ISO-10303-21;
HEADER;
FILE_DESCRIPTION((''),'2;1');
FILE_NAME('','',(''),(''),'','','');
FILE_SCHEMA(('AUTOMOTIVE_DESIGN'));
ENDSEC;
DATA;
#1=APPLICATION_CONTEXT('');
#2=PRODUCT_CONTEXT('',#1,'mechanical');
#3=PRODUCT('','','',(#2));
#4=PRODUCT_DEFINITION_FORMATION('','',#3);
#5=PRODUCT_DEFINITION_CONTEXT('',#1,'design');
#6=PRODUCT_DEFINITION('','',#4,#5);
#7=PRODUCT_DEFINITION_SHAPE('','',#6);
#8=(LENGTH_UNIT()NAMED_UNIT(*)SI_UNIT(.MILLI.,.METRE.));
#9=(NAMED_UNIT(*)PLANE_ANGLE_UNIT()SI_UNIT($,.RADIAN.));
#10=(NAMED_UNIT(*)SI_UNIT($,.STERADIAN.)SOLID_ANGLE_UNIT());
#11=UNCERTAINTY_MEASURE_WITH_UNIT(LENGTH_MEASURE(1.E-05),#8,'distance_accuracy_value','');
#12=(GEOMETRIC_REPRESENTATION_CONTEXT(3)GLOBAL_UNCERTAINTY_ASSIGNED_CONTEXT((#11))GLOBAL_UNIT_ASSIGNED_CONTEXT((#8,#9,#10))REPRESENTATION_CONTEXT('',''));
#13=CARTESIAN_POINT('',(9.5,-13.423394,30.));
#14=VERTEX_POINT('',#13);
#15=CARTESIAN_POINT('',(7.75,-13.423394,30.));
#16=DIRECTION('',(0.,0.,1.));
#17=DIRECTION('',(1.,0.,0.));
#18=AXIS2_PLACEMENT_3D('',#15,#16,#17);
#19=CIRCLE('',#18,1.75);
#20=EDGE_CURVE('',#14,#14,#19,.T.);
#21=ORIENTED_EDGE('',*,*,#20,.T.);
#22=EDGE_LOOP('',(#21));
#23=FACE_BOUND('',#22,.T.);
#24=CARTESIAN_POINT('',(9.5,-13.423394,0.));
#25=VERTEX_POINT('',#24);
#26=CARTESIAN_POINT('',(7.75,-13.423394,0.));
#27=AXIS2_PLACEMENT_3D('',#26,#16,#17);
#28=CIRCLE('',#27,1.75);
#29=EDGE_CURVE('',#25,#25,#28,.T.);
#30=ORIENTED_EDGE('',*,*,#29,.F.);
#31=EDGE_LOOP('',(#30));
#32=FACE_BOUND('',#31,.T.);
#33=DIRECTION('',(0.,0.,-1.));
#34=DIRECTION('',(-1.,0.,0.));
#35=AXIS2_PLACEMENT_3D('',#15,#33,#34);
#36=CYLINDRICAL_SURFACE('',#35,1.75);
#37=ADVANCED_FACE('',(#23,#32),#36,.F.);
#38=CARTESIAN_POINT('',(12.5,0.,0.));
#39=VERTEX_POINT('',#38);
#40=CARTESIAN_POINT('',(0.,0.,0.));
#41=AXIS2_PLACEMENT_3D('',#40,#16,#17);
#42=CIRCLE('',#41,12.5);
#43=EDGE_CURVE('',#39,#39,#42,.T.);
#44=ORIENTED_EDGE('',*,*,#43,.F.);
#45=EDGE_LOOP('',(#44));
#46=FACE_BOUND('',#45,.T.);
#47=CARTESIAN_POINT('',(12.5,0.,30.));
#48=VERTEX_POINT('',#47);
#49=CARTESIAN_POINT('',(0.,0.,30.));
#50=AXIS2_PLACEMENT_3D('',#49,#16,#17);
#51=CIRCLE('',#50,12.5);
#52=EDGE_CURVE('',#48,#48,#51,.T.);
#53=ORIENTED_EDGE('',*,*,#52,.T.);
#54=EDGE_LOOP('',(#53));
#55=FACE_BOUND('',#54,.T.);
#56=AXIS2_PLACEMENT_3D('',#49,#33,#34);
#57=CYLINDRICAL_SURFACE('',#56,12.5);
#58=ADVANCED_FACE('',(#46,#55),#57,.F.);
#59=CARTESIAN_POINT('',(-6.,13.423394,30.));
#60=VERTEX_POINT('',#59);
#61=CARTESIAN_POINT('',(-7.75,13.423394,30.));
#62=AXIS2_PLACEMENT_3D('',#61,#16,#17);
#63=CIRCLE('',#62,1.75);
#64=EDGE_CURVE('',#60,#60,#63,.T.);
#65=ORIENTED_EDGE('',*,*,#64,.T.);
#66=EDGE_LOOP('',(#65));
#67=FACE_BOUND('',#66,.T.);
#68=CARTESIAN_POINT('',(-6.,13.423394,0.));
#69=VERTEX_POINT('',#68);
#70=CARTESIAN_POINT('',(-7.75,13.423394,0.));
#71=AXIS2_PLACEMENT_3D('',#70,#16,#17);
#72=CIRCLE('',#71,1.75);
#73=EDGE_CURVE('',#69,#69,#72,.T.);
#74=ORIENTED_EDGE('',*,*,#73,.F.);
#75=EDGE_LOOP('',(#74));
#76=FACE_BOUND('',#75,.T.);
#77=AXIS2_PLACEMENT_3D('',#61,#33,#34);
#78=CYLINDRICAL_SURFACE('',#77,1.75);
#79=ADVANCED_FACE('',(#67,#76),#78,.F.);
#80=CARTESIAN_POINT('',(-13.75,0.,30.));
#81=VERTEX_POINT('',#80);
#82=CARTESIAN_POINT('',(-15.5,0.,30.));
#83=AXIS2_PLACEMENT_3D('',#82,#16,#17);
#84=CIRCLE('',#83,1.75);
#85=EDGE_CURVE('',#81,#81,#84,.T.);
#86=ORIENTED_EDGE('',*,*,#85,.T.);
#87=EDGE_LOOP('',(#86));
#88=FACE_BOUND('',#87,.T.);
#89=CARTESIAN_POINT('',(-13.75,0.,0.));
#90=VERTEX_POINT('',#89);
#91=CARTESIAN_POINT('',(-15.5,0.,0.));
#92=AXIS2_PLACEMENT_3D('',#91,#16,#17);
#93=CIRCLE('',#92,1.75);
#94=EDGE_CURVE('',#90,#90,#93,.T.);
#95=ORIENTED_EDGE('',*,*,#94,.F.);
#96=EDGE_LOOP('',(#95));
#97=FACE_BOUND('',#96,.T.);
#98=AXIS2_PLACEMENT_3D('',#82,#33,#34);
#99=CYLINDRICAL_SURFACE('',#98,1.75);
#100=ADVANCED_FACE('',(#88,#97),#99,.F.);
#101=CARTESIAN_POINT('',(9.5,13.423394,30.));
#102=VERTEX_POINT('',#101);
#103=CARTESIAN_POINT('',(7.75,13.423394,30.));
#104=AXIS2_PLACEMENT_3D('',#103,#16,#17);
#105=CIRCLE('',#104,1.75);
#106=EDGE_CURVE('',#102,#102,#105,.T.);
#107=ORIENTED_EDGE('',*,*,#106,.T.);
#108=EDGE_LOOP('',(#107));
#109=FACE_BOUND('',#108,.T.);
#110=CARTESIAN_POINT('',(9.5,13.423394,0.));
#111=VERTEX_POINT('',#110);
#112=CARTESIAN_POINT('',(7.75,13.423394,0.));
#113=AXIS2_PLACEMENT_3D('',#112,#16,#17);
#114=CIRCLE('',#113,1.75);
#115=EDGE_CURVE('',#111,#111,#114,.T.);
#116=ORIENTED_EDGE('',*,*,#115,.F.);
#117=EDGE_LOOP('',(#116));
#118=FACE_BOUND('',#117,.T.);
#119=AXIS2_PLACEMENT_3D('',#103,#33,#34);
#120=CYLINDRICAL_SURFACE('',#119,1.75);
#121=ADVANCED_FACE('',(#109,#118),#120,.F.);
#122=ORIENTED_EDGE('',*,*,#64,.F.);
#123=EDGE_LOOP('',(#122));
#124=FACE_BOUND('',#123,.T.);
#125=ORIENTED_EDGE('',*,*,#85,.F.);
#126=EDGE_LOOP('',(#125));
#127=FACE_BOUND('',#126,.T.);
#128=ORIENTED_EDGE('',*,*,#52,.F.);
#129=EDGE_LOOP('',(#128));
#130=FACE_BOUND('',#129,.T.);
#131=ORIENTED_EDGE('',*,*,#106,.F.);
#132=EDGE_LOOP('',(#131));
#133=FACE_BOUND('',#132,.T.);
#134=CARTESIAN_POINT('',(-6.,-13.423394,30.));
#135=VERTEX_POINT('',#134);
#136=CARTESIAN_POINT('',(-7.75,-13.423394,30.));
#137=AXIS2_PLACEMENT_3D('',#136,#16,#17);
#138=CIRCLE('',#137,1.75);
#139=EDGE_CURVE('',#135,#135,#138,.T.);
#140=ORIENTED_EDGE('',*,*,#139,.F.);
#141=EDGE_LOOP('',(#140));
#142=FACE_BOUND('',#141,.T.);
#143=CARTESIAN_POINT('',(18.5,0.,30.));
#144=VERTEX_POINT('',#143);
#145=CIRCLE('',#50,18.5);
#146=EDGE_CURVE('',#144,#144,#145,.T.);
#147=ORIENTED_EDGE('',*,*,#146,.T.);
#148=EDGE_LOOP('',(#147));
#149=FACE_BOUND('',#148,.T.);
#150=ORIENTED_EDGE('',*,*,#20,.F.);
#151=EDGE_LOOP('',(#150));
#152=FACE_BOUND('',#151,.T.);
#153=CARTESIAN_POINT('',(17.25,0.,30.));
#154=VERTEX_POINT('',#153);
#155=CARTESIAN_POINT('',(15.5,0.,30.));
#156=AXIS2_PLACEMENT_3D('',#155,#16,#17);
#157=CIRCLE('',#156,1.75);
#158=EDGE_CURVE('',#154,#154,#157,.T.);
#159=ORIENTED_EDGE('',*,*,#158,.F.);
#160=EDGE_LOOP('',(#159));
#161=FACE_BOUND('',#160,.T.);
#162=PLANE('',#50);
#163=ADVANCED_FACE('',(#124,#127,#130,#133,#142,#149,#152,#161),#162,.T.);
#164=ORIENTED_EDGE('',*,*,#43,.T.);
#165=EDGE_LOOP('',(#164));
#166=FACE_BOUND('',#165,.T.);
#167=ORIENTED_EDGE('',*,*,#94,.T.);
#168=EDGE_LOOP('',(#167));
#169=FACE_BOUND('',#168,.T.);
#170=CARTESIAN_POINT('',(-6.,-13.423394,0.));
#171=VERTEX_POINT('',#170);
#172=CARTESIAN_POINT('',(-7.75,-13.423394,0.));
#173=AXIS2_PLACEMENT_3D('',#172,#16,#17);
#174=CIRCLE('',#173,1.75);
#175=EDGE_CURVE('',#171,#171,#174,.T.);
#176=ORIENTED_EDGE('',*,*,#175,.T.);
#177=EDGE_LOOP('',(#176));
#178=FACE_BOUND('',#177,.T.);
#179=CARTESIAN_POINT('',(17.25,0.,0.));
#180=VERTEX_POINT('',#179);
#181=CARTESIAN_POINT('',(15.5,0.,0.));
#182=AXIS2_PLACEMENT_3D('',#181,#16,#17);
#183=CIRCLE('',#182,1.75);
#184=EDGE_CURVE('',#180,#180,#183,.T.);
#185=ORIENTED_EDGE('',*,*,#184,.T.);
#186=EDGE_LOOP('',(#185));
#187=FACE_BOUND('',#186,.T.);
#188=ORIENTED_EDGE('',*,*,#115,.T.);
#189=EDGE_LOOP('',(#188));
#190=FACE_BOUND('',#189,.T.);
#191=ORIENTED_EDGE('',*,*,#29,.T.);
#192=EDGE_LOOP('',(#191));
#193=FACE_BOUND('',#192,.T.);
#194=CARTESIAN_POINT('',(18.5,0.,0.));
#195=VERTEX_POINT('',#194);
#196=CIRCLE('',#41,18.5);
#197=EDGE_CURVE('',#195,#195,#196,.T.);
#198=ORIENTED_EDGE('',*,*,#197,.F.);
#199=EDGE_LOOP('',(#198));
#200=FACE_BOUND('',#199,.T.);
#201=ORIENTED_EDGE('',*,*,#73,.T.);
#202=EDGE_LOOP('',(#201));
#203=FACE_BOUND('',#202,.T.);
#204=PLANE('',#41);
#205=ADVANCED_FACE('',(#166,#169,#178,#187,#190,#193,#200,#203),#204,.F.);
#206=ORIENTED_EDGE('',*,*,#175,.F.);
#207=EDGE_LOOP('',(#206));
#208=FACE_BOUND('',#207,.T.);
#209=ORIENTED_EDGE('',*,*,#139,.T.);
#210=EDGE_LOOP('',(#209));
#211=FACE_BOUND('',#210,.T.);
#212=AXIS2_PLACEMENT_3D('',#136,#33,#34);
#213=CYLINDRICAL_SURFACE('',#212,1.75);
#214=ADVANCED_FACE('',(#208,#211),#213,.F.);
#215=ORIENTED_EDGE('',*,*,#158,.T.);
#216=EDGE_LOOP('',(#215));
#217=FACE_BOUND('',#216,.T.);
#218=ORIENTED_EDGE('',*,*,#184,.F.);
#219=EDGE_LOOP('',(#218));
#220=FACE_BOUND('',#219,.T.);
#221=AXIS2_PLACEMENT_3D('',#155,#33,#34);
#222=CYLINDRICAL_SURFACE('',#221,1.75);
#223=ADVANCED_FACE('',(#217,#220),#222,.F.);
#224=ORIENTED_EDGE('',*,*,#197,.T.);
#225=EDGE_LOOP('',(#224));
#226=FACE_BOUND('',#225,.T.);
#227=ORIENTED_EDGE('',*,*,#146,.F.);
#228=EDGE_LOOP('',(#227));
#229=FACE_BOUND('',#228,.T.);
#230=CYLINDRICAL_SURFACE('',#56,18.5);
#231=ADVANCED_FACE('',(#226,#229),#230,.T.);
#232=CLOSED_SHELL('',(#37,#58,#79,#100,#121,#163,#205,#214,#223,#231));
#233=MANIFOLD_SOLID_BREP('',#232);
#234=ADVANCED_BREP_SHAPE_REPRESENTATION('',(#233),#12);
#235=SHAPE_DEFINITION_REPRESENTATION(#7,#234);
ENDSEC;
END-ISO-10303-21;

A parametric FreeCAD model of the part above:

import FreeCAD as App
import Part
import Sketcher
from FreeCAD import Vector
Q = App.Units.Quantity

doc = App.newDocument("Part")
body = doc.addObject("PartDesign::Body", "Body")

# Sketch on XY plane
sketch1 = doc.addObject("Sketcher::SketchObject", "Sketch")
body.addObject(sketch1)
sketch1.AttachmentSupport = (doc.XY_Plane, [""])
sketch1.MapMode = "FlatFace"
sketch1.addGeometry(Part.Circle(Vector(0, 0, 0), Vector(0, 0, 1), 18.5), False)
sketch1.addGeometry(Part.Circle(Vector(-7.8, -13.4, 0), Vector(0, 0, 1), 1.8), False)
sketch1.addGeometry(Part.Circle(Vector(7.8, -13.4, 0), Vector(0, 0, 1), 1.8), False)
sketch1.addGeometry(Part.Circle(Vector(-15.5, 0, 0), Vector(0, 0, 1), 1.8), False)
sketch1.addGeometry(Part.Circle(Vector(-7.8, 13.4, 0), Vector(0, 0, 1), 1.8), False)
sketch1.addGeometry(Part.Circle(Vector(0, 0, 0), Vector(0, 0, 1), 12.5), False)
sketch1.addGeometry(Part.Circle(Vector(15.5, 0, 0), Vector(0, 0, 1), 1.8), False)
sketch1.addGeometry(Part.Circle(Vector(7.8, 13.4, 0), Vector(0, 0, 1), 1.8), False)
sketch1.addConstraint(Sketcher.Constraint("Coincident", 0, 3, -1, 1))
sketch1.addConstraint(Sketcher.Constraint("Coincident", 5, 3, -1, 1))
sketch1.addConstraint(Sketcher.Constraint("Equal", 1, 2))
sketch1.addConstraint(Sketcher.Constraint("Equal", 2, 3))
sketch1.addConstraint(Sketcher.Constraint("Equal", 3, 4))
sketch1.addConstraint(Sketcher.Constraint("Equal", 4, 6))
sketch1.addConstraint(Sketcher.Constraint("Equal", 6, 7))
sketch1.addConstraint(Sketcher.Constraint("Symmetric", 2, 3, 4, 3, -1, 1))
sketch1.addConstraint(Sketcher.Constraint("Symmetric", 3, 3, 6, 3, -1, 1))
sketch1.addConstraint(Sketcher.Constraint("Symmetric", 1, 3, 7, 3, -1, 1))
sketch1.addConstraint(Sketcher.Constraint("Symmetric", 1, 3, 2, 3, -2))
sketch1.addConstraint(Sketcher.Constraint("PointOnObject", 3, 3, -1))
sketch1.addConstraint(Sketcher.Constraint("Diameter", 0, Q("37 mm")))
sketch1.addConstraint(Sketcher.Constraint("Diameter", 5, Q("25 mm")))
sketch1.addConstraint(Sketcher.Constraint("Diameter", 1, Q("3.5 mm")))
sketch1.addConstraint(Sketcher.Constraint("DistanceX", 3, 3, -1, 1, Q("15.5 mm")))
sketch1.addConstraint(Sketcher.Constraint("DistanceX", 1, 3, 2, 3, Q("15.5 mm")))
sketch1.addConstraint(Sketcher.Constraint("DistanceY", 1, 3, -1, 1, Q("13.423394 mm")))
pad1 = doc.addObject("PartDesign::Pad", "Pad")
body.addObject(pad1)
pad1.Profile = sketch1
pad1.Length = 30

doc.recompute()
